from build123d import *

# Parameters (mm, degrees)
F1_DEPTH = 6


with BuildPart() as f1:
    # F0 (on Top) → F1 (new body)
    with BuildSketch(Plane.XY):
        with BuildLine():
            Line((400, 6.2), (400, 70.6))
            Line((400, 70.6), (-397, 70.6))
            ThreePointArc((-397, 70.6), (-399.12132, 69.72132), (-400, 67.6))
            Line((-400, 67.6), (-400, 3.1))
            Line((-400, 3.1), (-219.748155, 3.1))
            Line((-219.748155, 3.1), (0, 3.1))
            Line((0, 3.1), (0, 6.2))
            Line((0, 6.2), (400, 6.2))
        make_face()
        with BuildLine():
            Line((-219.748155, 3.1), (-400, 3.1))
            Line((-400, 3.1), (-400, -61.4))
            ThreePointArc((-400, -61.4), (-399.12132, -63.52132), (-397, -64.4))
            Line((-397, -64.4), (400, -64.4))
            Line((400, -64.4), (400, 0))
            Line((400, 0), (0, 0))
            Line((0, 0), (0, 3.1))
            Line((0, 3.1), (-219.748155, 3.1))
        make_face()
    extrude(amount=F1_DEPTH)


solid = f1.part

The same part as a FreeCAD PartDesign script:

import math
import FreeCAD as App
import Part
import Sketcher

V = App.Vector

doc = App.newDocument("Part")
body = doc.addObject("PartDesign::Body", "Body")

sketch1 = doc.addObject("Sketcher::SketchObject", "Sketch")
body.addObject(sketch1)
sketch1.AttachmentSupport = (doc.XY_Plane, [""])
sketch1.MapMode = "FlatFace"
sketch1.addGeometry(Part.LineSegment(V(400, 6.2, 0), V(400, 70.6, 0)), False)
sketch1.addGeometry(Part.LineSegment(V(400, 70.6, 0), V(-397, 70.6, 0)), False)
sketch1.addGeometry(Part.ArcOfCircle(Part.Circle(V(-397, 67.6, 0), V(0, 0, 1), 3), math.radians(90), math.radians(180)), False)
sketch1.addGeometry(Part.LineSegment(V(-400, 67.6, 0), V(-400, -61.4, 0)), False)
sketch1.addGeometry(Part.ArcOfCircle(Part.Circle(V(-397, -61.4, 0), V(0, 0, 1), 3), math.radians(-180), math.radians(-90)), False)
sketch1.addGeometry(Part.LineSegment(V(-397, -64.4, 0), V(400, -64.4, 0)), False)
sketch1.addGeometry(Part.LineSegment(V(400, -64.4, 0), V(400, 0, 0)), False)
sketch1.addGeometry(Part.LineSegment(V(400, 0, 0), V(0, 0, 0)), False)
sketch1.addGeometry(Part.LineSegment(V(0, 0, 0), V(0, 6.2, 0)), False)
sketch1.addGeometry(Part.LineSegment(V(0, 6.2, 0), V(400, 6.2, 0)), False)
sketch1.addConstraint(Sketcher.Constraint("Coincident", 0, 2, 1, 1))
sketch1.addConstraint(Sketcher.Constraint("Tangent", 1, 2, 2, 1))
sketch1.addConstraint(Sketcher.Constraint("Tangent", 2, 2, 3, 1))
sketch1.addConstraint(Sketcher.Constraint("Tangent", 3, 2, 4, 1))
sketch1.addConstraint(Sketcher.Constraint("Tangent", 4, 2, 5, 1))
sketch1.addConstraint(Sketcher.Constraint("Coincident", 5, 2, 6, 1))
sketch1.addConstraint(Sketcher.Constraint("Coincident", 6, 2, 7, 1))
sketch1.addConstraint(Sketcher.Constraint("Coincident", 7, 2, 8, 1))
sketch1.addConstraint(Sketcher.Constraint("Coincident", 8, 2, 9, 1))
sketch1.addConstraint(Sketcher.Constraint("Coincident", 9, 2, 0, 1))
sketch1.addConstraint(Sketcher.Constraint("Vertical", 0))
sketch1.addConstraint(Sketcher.Constraint("Horizontal", 1))
sketch1.addConstraint(Sketcher.Constraint("Vertical", 3))
sketch1.addConstraint(Sketcher.Constraint("Horizontal", 5))
sketch1.addConstraint(Sketcher.Constraint("Vertical", 6))
sketch1.addConstraint(Sketcher.Constraint("Horizontal", 7))
sketch1.addConstraint(Sketcher.Constraint("Vertical", 8))
sketch1.addConstraint(Sketcher.Constraint("Horizontal", 9))
sketch1.addConstraint(Sketcher.Constraint("Coincident", 7, 2, -1, 1))
sketch1.addConstraint(Sketcher.Constraint("Equal", 2, 4))
sketch1.addConstraint(Sketcher.Constraint("Vertical", 0, 2, 5, 2))
sketch1.addConstraint(Sketcher.Constraint("Equal", 0, 6))
sketch1.addConstraint(Sketcher.Constraint("Radius", 2, 3.000001))
sketch1.addConstraint(Sketcher.Constraint("DistanceX", 1, 2, 1, 1, 797.0))
sketch1.addConstraint(Sketcher.Constraint("DistanceX", 7, 2, 7, 1, 400.0))
sketch1.addConstraint(Sketcher.Constraint("DistanceY", 3, 2, 3, 1, 129.0))
sketch1.addConstraint(Sketcher.Constraint("DistanceY", 0, 1, 0, 2, 64.4))
pad1 = doc.addObject("PartDesign::Pad", "Pad")
body.addObject(pad1)
pad1.Profile = sketch1
pad1.Length = 6

doc.recompute()
